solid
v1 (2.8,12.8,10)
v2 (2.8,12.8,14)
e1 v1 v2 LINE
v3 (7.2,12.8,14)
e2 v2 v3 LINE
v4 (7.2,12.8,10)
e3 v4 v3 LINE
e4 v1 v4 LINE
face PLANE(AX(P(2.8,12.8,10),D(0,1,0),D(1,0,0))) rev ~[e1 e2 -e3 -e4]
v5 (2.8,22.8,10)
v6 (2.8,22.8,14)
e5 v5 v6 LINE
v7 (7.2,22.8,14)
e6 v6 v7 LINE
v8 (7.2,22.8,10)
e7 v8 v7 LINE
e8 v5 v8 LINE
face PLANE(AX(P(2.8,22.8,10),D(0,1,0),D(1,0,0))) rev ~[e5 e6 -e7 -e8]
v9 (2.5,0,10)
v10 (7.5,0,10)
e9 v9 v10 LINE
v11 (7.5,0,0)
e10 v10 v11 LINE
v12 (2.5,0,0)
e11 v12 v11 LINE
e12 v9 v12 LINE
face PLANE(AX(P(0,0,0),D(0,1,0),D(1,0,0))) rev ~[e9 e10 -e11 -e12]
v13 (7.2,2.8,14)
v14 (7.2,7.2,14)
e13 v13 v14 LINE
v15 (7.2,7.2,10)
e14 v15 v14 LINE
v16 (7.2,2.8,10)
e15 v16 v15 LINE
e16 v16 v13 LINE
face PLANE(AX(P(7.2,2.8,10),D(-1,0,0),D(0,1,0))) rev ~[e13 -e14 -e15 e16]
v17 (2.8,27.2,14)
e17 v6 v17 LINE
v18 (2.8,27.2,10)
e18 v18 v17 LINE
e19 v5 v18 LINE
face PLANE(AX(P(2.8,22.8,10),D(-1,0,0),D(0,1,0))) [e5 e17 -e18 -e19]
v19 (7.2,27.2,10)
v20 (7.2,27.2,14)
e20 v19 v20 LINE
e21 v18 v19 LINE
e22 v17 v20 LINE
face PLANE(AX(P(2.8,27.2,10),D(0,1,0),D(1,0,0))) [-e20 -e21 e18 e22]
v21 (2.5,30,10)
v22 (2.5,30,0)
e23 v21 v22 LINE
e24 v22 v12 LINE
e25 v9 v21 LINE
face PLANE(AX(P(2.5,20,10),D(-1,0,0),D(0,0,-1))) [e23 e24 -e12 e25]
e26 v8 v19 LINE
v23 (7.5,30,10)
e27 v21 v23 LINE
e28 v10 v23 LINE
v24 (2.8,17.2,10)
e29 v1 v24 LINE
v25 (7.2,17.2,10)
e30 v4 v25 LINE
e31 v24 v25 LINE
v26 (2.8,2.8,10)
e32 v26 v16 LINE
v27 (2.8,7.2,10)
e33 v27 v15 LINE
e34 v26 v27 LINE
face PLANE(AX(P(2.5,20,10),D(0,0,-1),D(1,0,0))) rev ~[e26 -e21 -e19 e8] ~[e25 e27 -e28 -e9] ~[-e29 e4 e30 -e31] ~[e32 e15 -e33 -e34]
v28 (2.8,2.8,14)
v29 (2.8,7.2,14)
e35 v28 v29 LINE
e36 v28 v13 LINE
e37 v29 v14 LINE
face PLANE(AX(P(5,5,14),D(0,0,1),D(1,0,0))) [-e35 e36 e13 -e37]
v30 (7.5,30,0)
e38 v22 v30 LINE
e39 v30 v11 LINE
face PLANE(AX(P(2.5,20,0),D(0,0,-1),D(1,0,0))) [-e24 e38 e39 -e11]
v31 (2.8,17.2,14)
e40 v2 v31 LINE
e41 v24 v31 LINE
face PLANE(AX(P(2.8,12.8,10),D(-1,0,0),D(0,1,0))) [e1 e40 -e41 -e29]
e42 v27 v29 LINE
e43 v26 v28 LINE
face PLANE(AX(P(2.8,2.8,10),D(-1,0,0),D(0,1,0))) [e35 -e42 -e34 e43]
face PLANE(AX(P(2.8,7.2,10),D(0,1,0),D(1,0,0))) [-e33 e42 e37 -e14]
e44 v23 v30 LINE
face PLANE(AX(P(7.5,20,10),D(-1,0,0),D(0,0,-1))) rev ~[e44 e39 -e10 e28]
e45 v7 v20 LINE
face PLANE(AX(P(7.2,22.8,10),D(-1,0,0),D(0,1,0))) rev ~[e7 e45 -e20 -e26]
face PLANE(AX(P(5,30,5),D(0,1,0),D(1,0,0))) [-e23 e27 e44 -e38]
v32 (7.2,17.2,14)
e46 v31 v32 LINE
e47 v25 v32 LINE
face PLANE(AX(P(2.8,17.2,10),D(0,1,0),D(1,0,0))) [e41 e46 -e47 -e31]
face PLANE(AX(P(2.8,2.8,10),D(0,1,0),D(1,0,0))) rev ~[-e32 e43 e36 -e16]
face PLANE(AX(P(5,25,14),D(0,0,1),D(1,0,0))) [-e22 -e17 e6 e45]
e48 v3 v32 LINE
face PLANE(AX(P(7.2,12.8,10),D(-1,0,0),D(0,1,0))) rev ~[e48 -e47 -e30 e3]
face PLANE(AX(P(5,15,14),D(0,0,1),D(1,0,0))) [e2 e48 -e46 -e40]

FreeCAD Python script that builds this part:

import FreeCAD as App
import Part
import Sketcher

doc = App.newDocument("Part")
body = doc.addObject("PartDesign::Body", "Body")

sketch1 = body.newObject("Sketcher::SketchObject", "Sketch")
sketch1.AttachmentSupport = (doc.getObject("XY_Plane"), [""])
sketch1.MapMode = "FlatFace"
sketch1.addGeometry(Part.LineSegment(App.Vector(0, 10, 0), App.Vector(0, 0, 0)), False)
sketch1.addGeometry(Part.LineSegment(App.Vector(0, 0, 0), App.Vector(10, 0, 0)), False)
sketch1.addGeometry(Part.LineSegment(App.Vector(10, 0, 0), App.Vector(10, 10, 0)), False)
sketch1.addGeometry(Part.LineSegment(App.Vector(10, 10, 0), App.Vector(0, 10, 0)), False)
sketch1.addConstraint(Sketcher.Constraint("Coincident", 0, 2, 1, 1))
sketch1.addConstraint(Sketcher.Constraint("Coincident", 1, 2, 2, 1))
sketch1.addConstraint(Sketcher.Constraint("Coincident", 2, 2, 3, 1))
sketch1.addConstraint(Sketcher.Constraint("Coincident", 3, 2, 0, 1))
sketch1.addConstraint(Sketcher.Constraint("Vertical", 0))
sketch1.addConstraint(Sketcher.Constraint("Horizontal", 1))
sketch1.addConstraint(Sketcher.Constraint("Vertical", 2))
sketch1.addConstraint(Sketcher.Constraint("Horizontal", 3))
sketch1.addConstraint(Sketcher.Constraint("Coincident", 0, 2, -1, 1))
sketch1.addConstraint(Sketcher.Constraint("Equal", 3, 0))
sketch1.addConstraint(Sketcher.Constraint("DistanceX", 1, 1, 1, 2, 10.0))
pad1 = body.newObject("PartDesign::Pad", "Pad")
pad1.Profile = sketch1
pad1.Length = 10

sketch2 = body.newObject("Sketcher::SketchObject", "Sketch001")
sketch2.AttachmentSupport = (doc.getObject("XY_Plane"), [""])
sketch2.MapMode = "FlatFace"
sketch2.AttachmentOffset = App.Placement(App.Vector(0, 0, 10), App.Rotation())
sketch2.addGeometry(Part.LineSegment(App.Vector(2.8, 7.2, 0), App.Vector(2.8, 2.8, 0)), False)
sketch2.addGeometry(Part.LineSegment(App.Vector(2.8, 2.8, 0), App.Vector(7.2, 2.8, 0)), False)
sketch2.addGeometry(Part.LineSegment(App.Vector(7.2, 2.8, 0), App.Vector(7.2, 7.2, 0)), False)
sketch2.addGeometry(Part.LineSegment(App.Vector(7.2, 7.2, 0), App.Vector(2.8, 7.2, 0)), False)
sketch2.addConstraint(Sketcher.Constraint("Coincident", 0, 2, 1, 1))
sketch2.addConstraint(Sketcher.Constraint("Coincident", 1, 2, 2, 1))
sketch2.addConstraint(Sketcher.Constraint("Coincident", 2, 2, 3, 1))
sketch2.addConstraint(Sketcher.Constraint("Coincident", 3, 2, 0, 1))
sketch2.addConstraint(Sketcher.Constraint("Vertical", 0))
sketch2.addConstraint(Sketcher.Constraint("Horizontal", 1))
sketch2.addConstraint(Sketcher.Constraint("Vertical", 2))
sketch2.addConstraint(Sketcher.Constraint("Horizontal", 3))
sketch2.addConstraint(Sketcher.Constraint("Equal", 3, 0))
sketch2.addConstraint(Sketcher.Constraint("DistanceX", 1, 1, 1, 2, 4.4))
sketch2.addConstraint(Sketcher.Constraint("DistanceX", -1, 1, 0, 2, 2.8))
sketch2.addConstraint(Sketcher.Constraint("DistanceY", -1, 1, 0, 2, 2.8))
pad2 = body.newObject("PartDesign::Pad", "Pad001")
pad2.Profile = sketch2
pad2.Length = 4

sketch3 = body.newObject("Sketcher::SketchObject", "Sketch002")
sketch3.AttachmentSupport = (doc.getObject("YZ_Plane"), [""])
sketch3.MapMode = "FlatFace"
sketch3.addGeometry(Part.LineSegment(App.Vector(0, 0, 0), App.Vector(0, 10, 0)), False)
sketch3.addGeometry(Part.LineSegment(App.Vector(0, 10, 0), App.Vector(10, 10, 0)), False)
sketch3.addGeometry(Part.LineSegment(App.Vector(10, 10, 0), App.Vector(10, 0, 0)), False)
sketch3.addGeometry(Part.LineSegment(App.Vector(10, 0, 0), App.Vector(0, 0, 0)), False)
sketch3.addConstraint(Sketcher.Constraint("Coincident", 0, 2, 1, 1))
sketch3.addConstraint(Sketcher.Constraint("Coincident", 1, 2, 2, 1))
sketch3.addConstraint(Sketcher.Constraint("Coincident", 2, 2, 3, 1))
sketch3.addConstraint(Sketcher.Constraint("Coincident", 3, 2, 0, 1))
sketch3.addConstraint(Sketcher.Constraint("Vertical", 0))
sketch3.addConstraint(Sketcher.Constraint("Horizontal", 1))
sketch3.addConstraint(Sketcher.Constraint("Vertical", 2))
sketch3.addConstraint(Sketcher.Constraint("Horizontal", 3))
sketch3.addConstraint(Sketcher.Constraint("Coincident", 3, 2, -1, 1))
sketch3.addConstraint(Sketcher.Constraint("Equal", 3, 0))
sketch3.addConstraint(Sketcher.Constraint("DistanceX", 1, 1, 1, 2, 10.0))
pocket1 = body.newObject("PartDesign::Pocket", "Pocket")
pocket1.Profile = sketch3
pocket1.Length = 2.5
pocket1.Reversed = True

sketch4 = body.newObject("Sketcher::SketchObject", "Sketch003")
sketch4.AttachmentSupport = (doc.getObject("YZ_Plane"), [""])
sketch4.MapMode = "FlatFace"
sketch4.AttachmentOffset = App.Placement(App.Vector(0, 0, 10), App.Rotation())
sketch4.addGeometry(Part.LineSegment(App.Vector(10, 0, 0), App.Vector(10, 10, 0)), False)
sketch4.addGeometry(Part.LineSegment(App.Vector(10, 10, 0), App.Vector(0, 10, 0)), False)
sketch4.addGeometry(Part.LineSegment(App.Vector(0, 10, 0), App.Vector(0, 0, 0)), False)
sketch4.addGeometry(Part.LineSegment(App.Vector(0, 0, 0), App.Vector(10, 0, 0)), False)
sketch4.addConstraint(Sketcher.Constraint("Coincident", 0, 2, 1, 1))
sketch4.addConstraint(Sketcher.Constraint("Coincident", 1, 2, 2, 1))
sketch4.addConstraint(Sketcher.Constraint("Coincident", 2, 2, 3, 1))
sketch4.addConstraint(Sketcher.Constraint("Coincident", 3, 2, 0, 1))
sketch4.addConstraint(Sketcher.Constraint("Vertical", 0))
sketch4.addConstraint(Sketcher.Constraint("Horizontal", 1))
sketch4.addConstraint(Sketcher.Constraint("Vertical", 2))
sketch4.addConstraint(Sketcher.Constraint("Horizontal", 3))
sketch4.addConstraint(Sketcher.Constraint("Coincident", 2, 2, -1, 1))
sketch4.addConstraint(Sketcher.Constraint("Equal", 3, 0))
sketch4.addConstraint(Sketcher.Constraint("DistanceX", 1, 2, 1, 1, 10.0))
pocket2 = body.newObject("PartDesign::Pocket", "Pocket001")
pocket2.Profile = sketch4
pocket2.Length = 2.5

sketch5 = body.newObject("Sketcher::SketchObject", "Sketch004")
sketch5.AttachmentSupport = (doc.getObject("XZ_Plane"), [""])
sketch5.MapMode = "FlatFace"
sketch5.AttachmentOffset = App.Placement(App.Vector(0, 0, -10), App.Rotation())
sketch5.addGeometry(Part.LineSegment(App.Vector(2, 0, 0), App.Vector(2, 10, 0)), False)
sketch5.addGeometry(Part.LineSegment(App.Vector(2, 10, 0), App.Vector(8, 10, 0)), False)
sketch5.addGeometry(Part.LineSegment(App.Vector(8, 10, 0), App.Vector(8, 0, 0)), False)
sketch5.addGeometry(Part.LineSegment(App.Vector(8, 0, 0), App.Vector(2, 0, 0)), False)
sketch5.addConstraint(Sketcher.Constraint("Coincident", 0, 2, 1, 1))
sketch5.addConstraint(Sketcher.Constraint("Coincident", 1, 2, 2, 1))
sketch5.addConstraint(Sketcher.Constraint("Coincident", 2, 2, 3, 1))
sketch5.addConstraint(Sketcher.Constraint("Coincident", 3, 2, 0, 1))
sketch5.addConstraint(Sketcher.Constraint("Vertical", 0))
sketch5.addConstraint(Sketcher.Constraint("Horizontal", 1))
sketch5.addConstraint(Sketcher.Constraint("Vertical", 2))
sketch5.addConstraint(Sketcher.Constraint("Horizontal", 3))
sketch5.addConstraint(Sketcher.Constraint("PointOnObject", 2, 2, -1))
sketch5.addConstraint(Sketcher.Constraint("DistanceX", 1, 1, 1, 2, 5.0))
sketch5.addConstraint(Sketcher.Constraint("DistanceY", 0, 1, 0, 2, 10.0))
sketch5.addConstraint(Sketcher.Constraint("DistanceX", -1, 1, 0, 2, 2.5))
pad3 = body.newObject("PartDesign::Pad", "Pad002")
pad3.Profile = sketch5
pad3.Length = 10
pad3.Reversed = True

sketch6 = body.newObject("Sketcher::SketchObject", "Sketch005")
sketch6.AttachmentSupport = (doc.getObject("XY_Plane"), [""])
sketch6.MapMode = "FlatFace"
sketch6.AttachmentOffset = App.Placement(App.Vector(0, 0, 10), App.Rotation())
sketch6.addGeometry(Part.LineSegment(App.Vector(2.8, 17.2, 0), App.Vector(2.8, 12.8, 0)), False)
sketch6.addGeometry(Part.LineSegment(App.Vector(2.8, 12.8, 0), App.Vector(7.2, 12.8, 0)), False)
sketch6.addGeometry(Part.LineSegment(App.Vector(7.2, 12.8, 0), App.Vector(7.2, 17.2, 0)), False)
sketch6.addGeometry(Part.LineSegment(App.Vector(7.2, 17.2, 0), App.Vector(2.8, 17.2, 0)), False)
sketch6.addConstraint(Sketcher.Constraint("Coincident", 0, 2, 1, 1))
sketch6.addConstraint(Sketcher.Constraint("Coincident", 1, 2, 2, 1))
sketch6.addConstraint(Sketcher.Constraint("Coincident", 2, 2, 3, 1))
sketch6.addConstraint(Sketcher.Constraint("Coincident", 3, 2, 0, 1))
sketch6.addConstraint(Sketcher.Constraint("Vertical", 0))
sketch6.addConstraint(Sketcher.Constraint("Horizontal", 1))
sketch6.addConstraint(Sketcher.Constraint("Vertical", 2))
sketch6.addConstraint(Sketcher.Constraint("Horizontal", 3))
sketch6.addConstraint(Sketcher.Constraint("Equal", 3, 0))
sketch6.addConstraint(Sketcher.Constraint("DistanceX", 1, 1, 1, 2, 4.4))
sketch6.addConstraint(Sketcher.Constraint("DistanceX", -1, 1, 0, 2, 2.8))
sketch6.addConstraint(Sketcher.Constraint("DistanceY", -1, 1, 0, 2, 12.8))
pad4 = body.newObject("PartDesign::Pad", "Pad003")
pad4.Profile = sketch6
pad4.Length = 4

sketch7 = body.newObject("Sketcher::SketchObject", "Sketch006")
sketch7.AttachmentSupport = (doc.getObject("XZ_Plane"), [""])
sketch7.MapMode = "FlatFace"
sketch7.AttachmentOffset = App.Placement(App.Vector(0, 0, -20), App.Rotation())
sketch7.addGeometry(Part.LineSegment(App.Vector(2, 0, 0), App.Vector(2, 10, 0)), False)
sketch7.addGeometry(Part.LineSegment(App.Vector(2, 10, 0), App.Vector(8, 10, 0)), False)
sketch7.addGeometry(Part.LineSegment(App.Vector(8, 10, 0), App.Vector(8, 0, 0)), False)
sketch7.addGeometry(Part.LineSegment(App.Vector(8, 0, 0), App.Vector(2, 0, 0)), False)
sketch7.addConstraint(Sketcher.Constraint("Coincident", 0, 2, 1, 1))
sketch7.addConstraint(Sketcher.Constraint("Coincident", 1, 2, 2, 1))
sketch7.addConstraint(Sketcher.Constraint("Coincident", 2, 2, 3, 1))
sketch7.addConstraint(Sketcher.Constraint("Coincident", 3, 2, 0, 1))
sketch7.addConstraint(Sketcher.Constraint("Vertical", 0))
sketch7.addConstraint(Sketcher.Constraint("Horizontal", 1))
sketch7.addConstraint(Sketcher.Constraint("Vertical", 2))
sketch7.addConstraint(Sketcher.Constraint("Horizontal", 3))
sketch7.addConstraint(Sketcher.Constraint("PointOnObject", 2, 2, -1))
sketch7.addConstraint(Sketcher.Constraint("DistanceX", 1, 1, 1, 2, 5.0))
sketch7.addConstraint(Sketcher.Constraint("DistanceY", 0, 1, 0, 2, 10.0))
sketch7.addConstraint(Sketcher.Constraint("DistanceX", -1, 1, 0, 2, 2.5))
pad5 = body.newObject("PartDesign::Pad", "Pad004")
pad5.Profile = sketch7
pad5.Length = 10
pad5.Reversed = True

sketch8 = body.newObject("Sketcher::SketchObject", "Sketch007")
sketch8.AttachmentSupport = (doc.getObject("XY_Plane"), [""])
sketch8.MapMode = "FlatFace"
sketch8.AttachmentOffset = App.Placement(App.Vector(0, 0, 10), App.Rotation())
sketch8.addGeometry(Part.LineSegment(App.Vector(2.8, 27.2, 0), App.Vector(2.8, 22.8, 0)), False)
sketch8.addGeometry(Part.LineSegment(App.Vector(2.8, 22.8, 0), App.Vector(7.2, 22.8, 0)), False)
sketch8.addGeometry(Part.LineSegment(App.Vector(7.2, 22.8, 0), App.Vector(7.2, 27.2, 0)), False)
sketch8.addGeometry(Part.LineSegment(App.Vector(7.2, 27.2, 0), App.Vector(2.8, 27.2, 0)), False)
sketch8.addConstraint(Sketcher.Constraint("Coincident", 0, 2, 1, 1))
sketch8.addConstraint(Sketcher.Constraint("Coincident", 1, 2, 2, 1))
sketch8.addConstraint(Sketcher.Constraint("Coincident", 2, 2, 3, 1))
sketch8.addConstraint(Sketcher.Constraint("Coincident", 3, 2, 0, 1))
sketch8.addConstraint(Sketcher.Constraint("Vertical", 0))
sketch8.addConstraint(Sketcher.Constraint("Horizontal", 1))
sketch8.addConstraint(Sketcher.Constraint("Vertical", 2))
sketch8.addConstraint(Sketcher.Constraint("Horizontal", 3))
sketch8.addConstraint(Sketcher.Constraint("Equal", 3, 0))
sketch8.addConstraint(Sketcher.Constraint("DistanceX", 1, 1, 1, 2, 4.4))
sketch8.addConstraint(Sketcher.Constraint("DistanceX", -1, 1, 0, 2, 2.8))
sketch8.addConstraint(Sketcher.Constraint("DistanceY", -1, 1, 0, 2, 22.8))
pad6 = body.newObject("PartDesign::Pad", "Pad005")
pad6.Profile = sketch8
pad6.Length = 4

doc.recompute()
